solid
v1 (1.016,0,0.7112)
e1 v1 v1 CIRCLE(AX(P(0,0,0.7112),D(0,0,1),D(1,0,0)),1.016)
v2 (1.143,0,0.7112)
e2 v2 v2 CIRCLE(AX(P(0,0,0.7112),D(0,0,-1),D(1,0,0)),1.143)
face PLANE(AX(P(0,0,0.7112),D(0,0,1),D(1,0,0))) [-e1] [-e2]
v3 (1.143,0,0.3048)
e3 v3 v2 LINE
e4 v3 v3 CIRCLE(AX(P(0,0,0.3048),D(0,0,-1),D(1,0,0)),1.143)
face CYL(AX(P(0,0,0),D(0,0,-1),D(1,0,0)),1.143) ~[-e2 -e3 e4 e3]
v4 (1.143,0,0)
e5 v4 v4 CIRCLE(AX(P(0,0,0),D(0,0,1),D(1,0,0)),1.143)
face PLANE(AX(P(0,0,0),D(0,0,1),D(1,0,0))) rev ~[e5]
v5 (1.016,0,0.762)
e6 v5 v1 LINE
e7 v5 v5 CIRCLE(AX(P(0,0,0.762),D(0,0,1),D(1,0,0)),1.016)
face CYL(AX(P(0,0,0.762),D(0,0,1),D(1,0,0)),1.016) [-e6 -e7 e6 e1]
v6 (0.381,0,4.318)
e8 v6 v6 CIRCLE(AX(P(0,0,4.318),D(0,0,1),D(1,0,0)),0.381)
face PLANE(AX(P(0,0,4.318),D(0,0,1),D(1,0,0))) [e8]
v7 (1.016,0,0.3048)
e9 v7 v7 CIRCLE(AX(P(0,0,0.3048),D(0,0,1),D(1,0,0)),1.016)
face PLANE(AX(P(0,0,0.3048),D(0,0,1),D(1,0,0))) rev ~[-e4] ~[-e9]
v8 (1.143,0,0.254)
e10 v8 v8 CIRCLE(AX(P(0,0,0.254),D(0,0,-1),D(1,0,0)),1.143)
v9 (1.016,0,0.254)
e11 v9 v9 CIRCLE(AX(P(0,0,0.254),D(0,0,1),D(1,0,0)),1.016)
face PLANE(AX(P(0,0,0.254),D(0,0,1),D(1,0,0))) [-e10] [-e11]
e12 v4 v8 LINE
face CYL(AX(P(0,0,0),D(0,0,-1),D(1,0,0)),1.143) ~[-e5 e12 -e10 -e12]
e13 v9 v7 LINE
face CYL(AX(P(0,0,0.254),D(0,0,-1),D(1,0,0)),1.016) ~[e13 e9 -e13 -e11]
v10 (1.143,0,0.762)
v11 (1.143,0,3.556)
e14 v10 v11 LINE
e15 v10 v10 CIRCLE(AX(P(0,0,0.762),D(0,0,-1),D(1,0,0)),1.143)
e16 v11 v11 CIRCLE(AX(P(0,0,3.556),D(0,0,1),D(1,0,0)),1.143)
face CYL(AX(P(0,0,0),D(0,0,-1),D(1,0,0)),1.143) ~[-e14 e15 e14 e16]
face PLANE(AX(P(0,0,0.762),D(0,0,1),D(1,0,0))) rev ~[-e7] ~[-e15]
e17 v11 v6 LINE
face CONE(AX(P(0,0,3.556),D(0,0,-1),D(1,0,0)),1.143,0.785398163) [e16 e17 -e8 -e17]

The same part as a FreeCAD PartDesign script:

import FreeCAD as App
import Part
import Sketcher
from FreeCAD import Vector
Q = App.Units.Quantity


def edges_at(feature, points):
    """Names of the edges that pass closest to the given points."""
    edges = feature.Shape.Edges
    near = lambda p: min(range(len(edges)), key=lambda i: edges[i].distToShape(Part.Vertex(*p))[0])
    return sorted({f"Edge{near(p) + 1}" for p in points})

doc = App.newDocument("Part")
body = doc.addObject("PartDesign::Body", "Body")

# Sketch on XY plane
sketch1 = body.newObject("Sketcher::SketchObject", "Sketch")
sketch1.AttachmentSupport = (doc.getObject("XY_Plane"), [""])
sketch1.MapMode = "FlatFace"
sketch1.addGeometry(Part.Circle(Vector(0, 0, 0), Vector(0, 0, 1), 1.143), False)
sketch1.addConstraint([
    Sketcher.Constraint("Coincident", 0, 3, -1, 1),
    Sketcher.Constraint("Diameter", 0, Q("0.09 in")),
])
pad1 = body.newObject("PartDesign::Pad", "Pad")
pad1.Profile = sketch1
pad1.Length = Q("0.17 in")

# Sketch on XY plane
sketch2 = body.newObject("Sketcher::SketchObject", "Sketch001")
sketch2.AttachmentSupport = (doc.getObject("XY_Plane"), [""])
sketch2.MapMode = "FlatFace"
sketch2.AttachmentOffset = App.Placement(Vector(0, 0, 0.01 * 25.4), App.Rotation())
sketch2.addGeometry([
    Part.Circle(Vector(0, 0, 0), Vector(0, 0, 1), 1.1557),
    Part.Circle(Vector(0, 0, 0), Vector(0, 0, 1), 1.016),
], False)
sketch2.addConstraint([
    Sketcher.Constraint("Coincident", 0, 3, -1, 1),
    Sketcher.Constraint("Coincident", 1, 3, -1, 1),
    Sketcher.Constraint("Diameter", 1, Q("0.08 in")),
    Sketcher.Constraint("Diameter", 0, Q("0.091 in")),
])
pocket1 = body.newObject("PartDesign::Pocket", "Pocket")
pocket1.Profile = sketch2
pocket1.Length = Q("0.002 in")
pocket1.Reversed = True

# Sketch on XY plane
sketch3 = body.newObject("Sketcher::SketchObject", "Sketch002")
sketch3.AttachmentSupport = (doc.getObject("XY_Plane"), [""])
sketch3.MapMode = "FlatFace"
sketch3.AttachmentOffset = App.Placement(Vector(0, 0, 0.03 * 25.4), App.Rotation())
sketch3.addGeometry([
    Part.Circle(Vector(0, 0, 0), Vector(0, 0, 1), 1.1557),
    Part.Circle(Vector(0, 0, 0), Vector(0, 0, 1), 1.016),
], False)
sketch3.addConstraint([
    Sketcher.Constraint("Coincident", 0, 3, -1, 1),
    Sketcher.Constraint("Coincident", 1, 3, -1, 1),
    Sketcher.Constraint("Diameter", 1, Q("0.08 in")),
    Sketcher.Constraint("Diameter", 0, Q("0.091 in")),
])
pocket2 = body.newObject("PartDesign::Pocket", "Pocket001")
pocket2.Profile = sketch3
pocket2.Length = Q("0.002 in")
doc.recompute()

chamfer = body.newObject("PartDesign::Chamfer", "Chamfer")
chamfer.Base = (pocket2, edges_at(pocket2, [(-1.143, 0, 4.318)]))
chamfer.Size = Q("0.03 in")

doc.recompute()
